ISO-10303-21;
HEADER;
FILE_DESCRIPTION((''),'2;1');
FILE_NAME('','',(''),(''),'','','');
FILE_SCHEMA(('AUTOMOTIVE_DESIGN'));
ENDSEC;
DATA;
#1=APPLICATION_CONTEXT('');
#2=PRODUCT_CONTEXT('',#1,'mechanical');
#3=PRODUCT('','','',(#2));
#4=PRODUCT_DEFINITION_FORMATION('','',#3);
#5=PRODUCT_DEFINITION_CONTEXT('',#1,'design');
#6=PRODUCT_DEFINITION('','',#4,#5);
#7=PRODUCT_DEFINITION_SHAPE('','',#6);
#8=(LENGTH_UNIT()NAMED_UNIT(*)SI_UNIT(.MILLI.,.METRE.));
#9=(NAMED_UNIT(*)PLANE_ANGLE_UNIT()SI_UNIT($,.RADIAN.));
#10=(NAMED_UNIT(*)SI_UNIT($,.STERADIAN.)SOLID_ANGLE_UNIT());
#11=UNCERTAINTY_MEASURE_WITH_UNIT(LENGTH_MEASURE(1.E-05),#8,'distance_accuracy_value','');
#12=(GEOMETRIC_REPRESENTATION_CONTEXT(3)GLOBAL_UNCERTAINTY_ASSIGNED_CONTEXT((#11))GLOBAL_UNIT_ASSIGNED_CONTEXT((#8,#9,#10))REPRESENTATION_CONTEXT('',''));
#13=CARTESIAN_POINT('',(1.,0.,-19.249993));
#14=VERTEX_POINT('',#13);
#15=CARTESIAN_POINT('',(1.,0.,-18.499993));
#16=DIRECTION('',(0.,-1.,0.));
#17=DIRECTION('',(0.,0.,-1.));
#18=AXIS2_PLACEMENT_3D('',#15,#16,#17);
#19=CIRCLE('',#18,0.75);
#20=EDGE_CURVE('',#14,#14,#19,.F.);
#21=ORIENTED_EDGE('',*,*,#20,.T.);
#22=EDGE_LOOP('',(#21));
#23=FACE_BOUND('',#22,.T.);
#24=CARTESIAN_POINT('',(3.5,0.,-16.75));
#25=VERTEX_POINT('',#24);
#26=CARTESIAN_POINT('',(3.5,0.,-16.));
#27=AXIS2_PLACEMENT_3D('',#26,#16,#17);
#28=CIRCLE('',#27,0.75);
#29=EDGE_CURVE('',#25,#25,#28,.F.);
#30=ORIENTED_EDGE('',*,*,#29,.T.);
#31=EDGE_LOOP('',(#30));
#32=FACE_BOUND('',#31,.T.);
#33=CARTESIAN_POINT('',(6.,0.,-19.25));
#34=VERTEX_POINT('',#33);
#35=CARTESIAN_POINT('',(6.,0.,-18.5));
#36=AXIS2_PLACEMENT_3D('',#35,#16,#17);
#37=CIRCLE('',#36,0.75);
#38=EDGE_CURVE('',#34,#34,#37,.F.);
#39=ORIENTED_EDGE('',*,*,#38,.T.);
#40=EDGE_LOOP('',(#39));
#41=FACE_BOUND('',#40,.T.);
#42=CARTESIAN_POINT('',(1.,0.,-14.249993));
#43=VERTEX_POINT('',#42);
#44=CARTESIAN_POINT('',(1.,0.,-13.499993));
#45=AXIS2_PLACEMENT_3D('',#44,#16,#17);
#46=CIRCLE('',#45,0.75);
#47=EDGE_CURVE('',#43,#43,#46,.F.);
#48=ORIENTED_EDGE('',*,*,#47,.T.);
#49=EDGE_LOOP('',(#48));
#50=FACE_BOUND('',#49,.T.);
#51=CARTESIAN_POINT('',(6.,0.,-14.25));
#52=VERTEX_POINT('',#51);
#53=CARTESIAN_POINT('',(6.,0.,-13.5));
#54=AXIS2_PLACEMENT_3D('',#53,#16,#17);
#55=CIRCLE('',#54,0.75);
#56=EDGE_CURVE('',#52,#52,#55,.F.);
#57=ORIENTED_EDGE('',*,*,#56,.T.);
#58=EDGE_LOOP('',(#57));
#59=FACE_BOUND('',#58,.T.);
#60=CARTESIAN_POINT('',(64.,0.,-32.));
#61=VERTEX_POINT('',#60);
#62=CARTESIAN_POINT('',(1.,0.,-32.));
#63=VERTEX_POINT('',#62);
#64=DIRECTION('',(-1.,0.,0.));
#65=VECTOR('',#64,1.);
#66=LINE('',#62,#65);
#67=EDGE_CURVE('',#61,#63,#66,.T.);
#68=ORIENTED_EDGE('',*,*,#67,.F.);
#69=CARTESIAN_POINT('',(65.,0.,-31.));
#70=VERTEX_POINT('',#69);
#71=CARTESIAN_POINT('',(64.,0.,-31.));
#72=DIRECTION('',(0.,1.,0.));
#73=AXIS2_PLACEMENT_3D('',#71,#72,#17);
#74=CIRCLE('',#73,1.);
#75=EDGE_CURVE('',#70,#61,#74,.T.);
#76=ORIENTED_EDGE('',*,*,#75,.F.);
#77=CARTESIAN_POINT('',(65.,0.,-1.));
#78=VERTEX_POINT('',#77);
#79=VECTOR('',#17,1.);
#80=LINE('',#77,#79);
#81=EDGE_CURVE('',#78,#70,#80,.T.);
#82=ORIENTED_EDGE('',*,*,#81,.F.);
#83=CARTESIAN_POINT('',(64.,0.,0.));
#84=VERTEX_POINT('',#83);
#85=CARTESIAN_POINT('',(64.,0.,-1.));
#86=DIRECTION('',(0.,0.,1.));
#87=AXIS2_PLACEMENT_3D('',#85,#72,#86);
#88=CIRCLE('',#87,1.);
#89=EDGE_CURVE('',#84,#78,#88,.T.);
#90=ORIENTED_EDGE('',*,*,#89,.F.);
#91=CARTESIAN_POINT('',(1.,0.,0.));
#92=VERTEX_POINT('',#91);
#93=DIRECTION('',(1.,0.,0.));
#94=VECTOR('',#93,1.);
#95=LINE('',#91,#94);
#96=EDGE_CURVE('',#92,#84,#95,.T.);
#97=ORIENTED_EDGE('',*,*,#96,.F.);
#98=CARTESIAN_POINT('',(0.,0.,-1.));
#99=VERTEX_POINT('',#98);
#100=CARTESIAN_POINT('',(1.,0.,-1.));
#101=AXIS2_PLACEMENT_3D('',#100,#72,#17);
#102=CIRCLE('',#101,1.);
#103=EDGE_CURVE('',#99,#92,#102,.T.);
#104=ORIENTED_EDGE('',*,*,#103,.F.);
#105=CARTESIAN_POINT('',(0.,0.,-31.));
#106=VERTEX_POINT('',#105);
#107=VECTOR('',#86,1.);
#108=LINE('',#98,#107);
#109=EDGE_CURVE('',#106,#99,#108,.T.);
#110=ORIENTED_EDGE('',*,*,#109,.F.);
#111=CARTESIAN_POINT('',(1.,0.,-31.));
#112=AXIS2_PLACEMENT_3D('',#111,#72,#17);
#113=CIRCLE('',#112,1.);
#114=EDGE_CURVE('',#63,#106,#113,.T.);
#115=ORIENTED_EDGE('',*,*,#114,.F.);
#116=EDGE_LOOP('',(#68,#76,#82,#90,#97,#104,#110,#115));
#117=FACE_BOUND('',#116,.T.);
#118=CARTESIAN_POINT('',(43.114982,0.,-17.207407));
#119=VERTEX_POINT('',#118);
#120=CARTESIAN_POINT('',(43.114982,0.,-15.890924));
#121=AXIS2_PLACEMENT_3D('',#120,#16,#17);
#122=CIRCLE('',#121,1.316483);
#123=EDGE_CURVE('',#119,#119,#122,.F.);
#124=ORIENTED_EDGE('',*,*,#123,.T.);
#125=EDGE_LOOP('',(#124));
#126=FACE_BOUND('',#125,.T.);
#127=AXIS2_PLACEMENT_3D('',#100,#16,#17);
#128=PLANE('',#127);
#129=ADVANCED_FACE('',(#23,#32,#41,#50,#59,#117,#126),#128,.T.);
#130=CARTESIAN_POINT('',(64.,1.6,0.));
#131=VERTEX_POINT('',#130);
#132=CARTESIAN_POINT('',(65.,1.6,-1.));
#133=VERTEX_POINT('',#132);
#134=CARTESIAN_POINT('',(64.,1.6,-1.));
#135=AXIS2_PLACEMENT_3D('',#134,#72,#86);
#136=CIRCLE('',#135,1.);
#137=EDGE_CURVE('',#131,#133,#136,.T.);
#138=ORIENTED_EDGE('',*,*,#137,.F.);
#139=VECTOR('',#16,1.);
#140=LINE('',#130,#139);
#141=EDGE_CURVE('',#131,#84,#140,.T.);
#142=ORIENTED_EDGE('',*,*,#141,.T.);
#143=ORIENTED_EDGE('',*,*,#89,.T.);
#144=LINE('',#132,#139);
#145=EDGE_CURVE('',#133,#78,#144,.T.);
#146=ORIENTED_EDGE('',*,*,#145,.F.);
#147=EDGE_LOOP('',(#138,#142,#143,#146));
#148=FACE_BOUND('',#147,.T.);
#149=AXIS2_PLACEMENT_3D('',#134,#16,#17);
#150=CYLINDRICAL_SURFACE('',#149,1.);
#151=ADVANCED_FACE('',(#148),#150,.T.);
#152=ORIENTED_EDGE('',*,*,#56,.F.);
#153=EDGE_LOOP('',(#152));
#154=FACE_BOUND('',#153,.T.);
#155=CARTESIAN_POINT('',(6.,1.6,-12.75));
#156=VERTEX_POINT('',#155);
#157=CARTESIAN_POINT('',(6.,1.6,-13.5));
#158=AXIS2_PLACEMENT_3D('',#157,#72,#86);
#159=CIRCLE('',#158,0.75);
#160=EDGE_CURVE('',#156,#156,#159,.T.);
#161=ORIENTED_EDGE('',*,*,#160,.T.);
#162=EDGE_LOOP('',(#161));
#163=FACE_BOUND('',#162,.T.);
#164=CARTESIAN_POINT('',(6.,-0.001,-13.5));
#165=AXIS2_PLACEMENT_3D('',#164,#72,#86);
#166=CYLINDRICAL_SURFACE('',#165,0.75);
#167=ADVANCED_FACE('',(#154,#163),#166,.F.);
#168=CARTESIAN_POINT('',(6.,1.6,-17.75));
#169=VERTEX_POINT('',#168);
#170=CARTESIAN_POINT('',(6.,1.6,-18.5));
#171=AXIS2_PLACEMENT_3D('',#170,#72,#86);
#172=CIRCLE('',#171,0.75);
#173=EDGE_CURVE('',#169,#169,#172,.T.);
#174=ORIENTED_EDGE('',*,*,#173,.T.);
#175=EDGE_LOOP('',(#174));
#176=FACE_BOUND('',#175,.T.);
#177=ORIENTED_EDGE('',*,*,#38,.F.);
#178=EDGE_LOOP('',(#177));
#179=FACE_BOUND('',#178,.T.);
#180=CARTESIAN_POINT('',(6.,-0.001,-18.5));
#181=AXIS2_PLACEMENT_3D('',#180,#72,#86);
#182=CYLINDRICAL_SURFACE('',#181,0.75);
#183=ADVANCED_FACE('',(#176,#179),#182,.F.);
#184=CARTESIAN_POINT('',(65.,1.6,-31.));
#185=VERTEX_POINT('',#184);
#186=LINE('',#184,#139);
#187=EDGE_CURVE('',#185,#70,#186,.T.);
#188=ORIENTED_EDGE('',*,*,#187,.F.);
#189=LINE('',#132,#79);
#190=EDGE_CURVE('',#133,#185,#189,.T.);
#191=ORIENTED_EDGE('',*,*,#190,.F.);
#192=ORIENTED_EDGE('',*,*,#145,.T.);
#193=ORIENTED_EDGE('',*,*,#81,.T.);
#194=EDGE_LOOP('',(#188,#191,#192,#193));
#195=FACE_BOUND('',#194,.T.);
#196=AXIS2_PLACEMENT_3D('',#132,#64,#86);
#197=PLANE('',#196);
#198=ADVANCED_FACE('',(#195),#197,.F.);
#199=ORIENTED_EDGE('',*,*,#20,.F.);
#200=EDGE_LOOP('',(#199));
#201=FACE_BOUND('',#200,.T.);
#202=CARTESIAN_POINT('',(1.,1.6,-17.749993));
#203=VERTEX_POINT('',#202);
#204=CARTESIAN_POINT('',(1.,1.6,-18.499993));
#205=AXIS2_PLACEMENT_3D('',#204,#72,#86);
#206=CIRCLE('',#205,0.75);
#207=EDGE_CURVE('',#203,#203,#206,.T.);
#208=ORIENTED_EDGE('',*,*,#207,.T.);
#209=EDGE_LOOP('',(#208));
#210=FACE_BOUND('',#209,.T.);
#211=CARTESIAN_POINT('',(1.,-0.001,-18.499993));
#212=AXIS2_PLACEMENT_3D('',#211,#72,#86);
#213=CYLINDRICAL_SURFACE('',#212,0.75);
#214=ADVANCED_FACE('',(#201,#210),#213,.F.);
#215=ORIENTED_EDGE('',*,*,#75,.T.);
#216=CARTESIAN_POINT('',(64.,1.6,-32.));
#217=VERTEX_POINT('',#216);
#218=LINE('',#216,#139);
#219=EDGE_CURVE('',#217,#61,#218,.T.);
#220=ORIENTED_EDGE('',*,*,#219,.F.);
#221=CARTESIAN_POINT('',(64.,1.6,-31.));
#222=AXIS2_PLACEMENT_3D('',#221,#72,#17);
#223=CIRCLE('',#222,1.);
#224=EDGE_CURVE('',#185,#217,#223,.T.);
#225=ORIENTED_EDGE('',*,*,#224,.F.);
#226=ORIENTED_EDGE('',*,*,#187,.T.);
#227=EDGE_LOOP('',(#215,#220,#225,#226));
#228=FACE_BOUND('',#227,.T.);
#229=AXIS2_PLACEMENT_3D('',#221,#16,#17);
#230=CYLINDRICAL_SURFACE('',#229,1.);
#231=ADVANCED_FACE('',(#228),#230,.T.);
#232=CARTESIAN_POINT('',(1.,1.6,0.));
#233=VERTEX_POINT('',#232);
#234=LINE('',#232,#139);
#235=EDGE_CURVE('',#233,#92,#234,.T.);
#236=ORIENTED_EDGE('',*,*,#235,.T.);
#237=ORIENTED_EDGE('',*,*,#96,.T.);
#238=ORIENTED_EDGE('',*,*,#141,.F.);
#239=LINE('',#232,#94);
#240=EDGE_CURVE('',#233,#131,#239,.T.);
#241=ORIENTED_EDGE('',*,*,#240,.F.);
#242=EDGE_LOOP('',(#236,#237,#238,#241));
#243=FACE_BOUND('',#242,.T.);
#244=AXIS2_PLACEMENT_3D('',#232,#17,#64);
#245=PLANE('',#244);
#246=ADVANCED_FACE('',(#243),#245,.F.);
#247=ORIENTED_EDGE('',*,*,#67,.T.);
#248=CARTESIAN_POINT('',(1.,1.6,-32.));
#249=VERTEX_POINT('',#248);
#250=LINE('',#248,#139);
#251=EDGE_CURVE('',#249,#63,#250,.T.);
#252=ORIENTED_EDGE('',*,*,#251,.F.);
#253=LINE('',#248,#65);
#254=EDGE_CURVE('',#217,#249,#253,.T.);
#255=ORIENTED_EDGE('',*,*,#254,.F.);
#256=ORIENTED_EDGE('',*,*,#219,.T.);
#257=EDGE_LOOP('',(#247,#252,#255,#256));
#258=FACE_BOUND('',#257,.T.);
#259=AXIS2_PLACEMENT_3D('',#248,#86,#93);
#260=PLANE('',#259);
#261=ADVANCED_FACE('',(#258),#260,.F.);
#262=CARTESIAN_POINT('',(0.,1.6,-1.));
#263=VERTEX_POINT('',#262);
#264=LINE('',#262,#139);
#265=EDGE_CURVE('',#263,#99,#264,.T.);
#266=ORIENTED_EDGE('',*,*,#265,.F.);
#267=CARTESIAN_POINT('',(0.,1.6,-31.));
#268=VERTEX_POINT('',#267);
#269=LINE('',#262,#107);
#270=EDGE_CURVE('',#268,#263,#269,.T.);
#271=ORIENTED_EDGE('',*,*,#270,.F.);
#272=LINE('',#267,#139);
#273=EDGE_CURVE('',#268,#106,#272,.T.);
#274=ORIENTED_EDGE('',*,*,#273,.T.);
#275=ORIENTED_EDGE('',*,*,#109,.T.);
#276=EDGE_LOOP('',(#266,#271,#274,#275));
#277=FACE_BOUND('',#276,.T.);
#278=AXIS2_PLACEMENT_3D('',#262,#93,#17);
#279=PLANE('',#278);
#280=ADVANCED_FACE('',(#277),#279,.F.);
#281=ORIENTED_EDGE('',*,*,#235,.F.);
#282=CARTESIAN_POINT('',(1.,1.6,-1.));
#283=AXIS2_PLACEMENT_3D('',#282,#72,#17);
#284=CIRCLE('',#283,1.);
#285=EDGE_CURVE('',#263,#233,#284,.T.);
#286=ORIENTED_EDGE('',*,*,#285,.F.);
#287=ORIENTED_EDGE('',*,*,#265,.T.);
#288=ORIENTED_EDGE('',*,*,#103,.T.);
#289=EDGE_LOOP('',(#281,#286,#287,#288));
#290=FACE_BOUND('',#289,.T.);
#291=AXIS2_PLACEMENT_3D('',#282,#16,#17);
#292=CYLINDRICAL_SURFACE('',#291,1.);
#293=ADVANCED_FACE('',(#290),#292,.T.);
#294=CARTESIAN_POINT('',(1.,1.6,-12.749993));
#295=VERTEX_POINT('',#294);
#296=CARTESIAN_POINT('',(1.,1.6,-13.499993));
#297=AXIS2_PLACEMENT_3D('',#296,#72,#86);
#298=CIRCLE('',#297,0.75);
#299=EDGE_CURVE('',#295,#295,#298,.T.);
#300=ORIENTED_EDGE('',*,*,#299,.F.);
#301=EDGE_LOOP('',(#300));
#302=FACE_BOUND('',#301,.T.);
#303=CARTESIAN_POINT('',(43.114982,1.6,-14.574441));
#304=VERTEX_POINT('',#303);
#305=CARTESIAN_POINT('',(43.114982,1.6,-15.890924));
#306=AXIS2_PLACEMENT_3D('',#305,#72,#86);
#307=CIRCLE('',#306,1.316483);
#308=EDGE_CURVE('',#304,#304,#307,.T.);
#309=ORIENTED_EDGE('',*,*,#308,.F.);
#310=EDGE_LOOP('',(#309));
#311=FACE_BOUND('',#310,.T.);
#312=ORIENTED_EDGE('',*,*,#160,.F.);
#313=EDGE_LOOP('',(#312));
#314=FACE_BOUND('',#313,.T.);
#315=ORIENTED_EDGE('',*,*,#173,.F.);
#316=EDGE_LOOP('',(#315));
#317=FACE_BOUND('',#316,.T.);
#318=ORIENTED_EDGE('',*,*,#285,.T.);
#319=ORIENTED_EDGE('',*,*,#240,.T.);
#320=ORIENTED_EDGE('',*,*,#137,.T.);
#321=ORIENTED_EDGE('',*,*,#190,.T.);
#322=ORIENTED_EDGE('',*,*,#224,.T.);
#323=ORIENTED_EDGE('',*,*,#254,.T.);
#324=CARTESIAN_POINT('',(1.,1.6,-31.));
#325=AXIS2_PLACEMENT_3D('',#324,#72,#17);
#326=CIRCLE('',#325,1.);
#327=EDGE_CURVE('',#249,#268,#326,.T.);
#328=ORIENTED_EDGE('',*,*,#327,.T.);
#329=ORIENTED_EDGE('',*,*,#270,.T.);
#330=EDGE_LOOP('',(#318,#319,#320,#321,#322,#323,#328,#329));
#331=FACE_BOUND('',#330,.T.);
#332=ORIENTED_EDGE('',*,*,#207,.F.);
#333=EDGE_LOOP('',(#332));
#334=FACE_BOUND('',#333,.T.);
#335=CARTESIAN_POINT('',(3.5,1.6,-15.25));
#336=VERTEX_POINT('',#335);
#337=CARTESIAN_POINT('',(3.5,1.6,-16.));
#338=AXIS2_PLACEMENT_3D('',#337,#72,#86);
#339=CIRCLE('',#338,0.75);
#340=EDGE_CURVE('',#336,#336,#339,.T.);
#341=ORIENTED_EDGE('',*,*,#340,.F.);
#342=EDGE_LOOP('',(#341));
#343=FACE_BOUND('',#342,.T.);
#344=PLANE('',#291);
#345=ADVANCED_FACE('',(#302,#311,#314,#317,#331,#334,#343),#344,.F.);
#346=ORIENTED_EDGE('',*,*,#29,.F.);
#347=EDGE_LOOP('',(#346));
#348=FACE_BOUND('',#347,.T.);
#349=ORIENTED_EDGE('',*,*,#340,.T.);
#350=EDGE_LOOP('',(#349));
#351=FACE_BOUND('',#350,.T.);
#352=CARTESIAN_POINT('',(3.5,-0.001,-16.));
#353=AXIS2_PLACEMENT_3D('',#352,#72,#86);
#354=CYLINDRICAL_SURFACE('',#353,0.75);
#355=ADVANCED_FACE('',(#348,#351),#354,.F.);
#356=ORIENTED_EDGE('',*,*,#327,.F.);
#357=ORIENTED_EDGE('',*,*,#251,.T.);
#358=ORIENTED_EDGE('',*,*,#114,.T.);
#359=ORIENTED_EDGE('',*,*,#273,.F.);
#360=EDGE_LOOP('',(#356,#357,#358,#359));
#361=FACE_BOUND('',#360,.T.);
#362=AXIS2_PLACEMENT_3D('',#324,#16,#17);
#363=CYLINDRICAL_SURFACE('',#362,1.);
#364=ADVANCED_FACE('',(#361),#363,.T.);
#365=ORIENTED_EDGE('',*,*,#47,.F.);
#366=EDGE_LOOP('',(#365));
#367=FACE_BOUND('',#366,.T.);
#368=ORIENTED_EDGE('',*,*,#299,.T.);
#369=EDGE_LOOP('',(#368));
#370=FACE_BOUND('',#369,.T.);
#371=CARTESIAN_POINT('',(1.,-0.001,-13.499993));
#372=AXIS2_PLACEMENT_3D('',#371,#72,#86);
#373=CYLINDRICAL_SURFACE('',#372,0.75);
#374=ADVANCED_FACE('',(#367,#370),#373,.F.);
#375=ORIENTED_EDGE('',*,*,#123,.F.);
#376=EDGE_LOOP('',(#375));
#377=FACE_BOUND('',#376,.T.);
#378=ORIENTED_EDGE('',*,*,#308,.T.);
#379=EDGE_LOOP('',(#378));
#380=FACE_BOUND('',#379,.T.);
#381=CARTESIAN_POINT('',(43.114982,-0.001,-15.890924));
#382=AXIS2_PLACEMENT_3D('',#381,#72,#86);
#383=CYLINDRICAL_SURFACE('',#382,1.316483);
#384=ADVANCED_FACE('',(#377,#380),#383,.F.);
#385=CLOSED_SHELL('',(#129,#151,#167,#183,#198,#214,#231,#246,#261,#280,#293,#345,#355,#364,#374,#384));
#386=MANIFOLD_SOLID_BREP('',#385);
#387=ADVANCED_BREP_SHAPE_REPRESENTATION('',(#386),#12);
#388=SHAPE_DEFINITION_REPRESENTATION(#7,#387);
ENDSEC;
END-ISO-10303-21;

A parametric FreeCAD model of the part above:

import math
import FreeCAD as App
import Part
import Sketcher

doc = App.newDocument("Part")
params = doc.addObject("Spreadsheet::Sheet", "Params")
for row, (alias, value) in enumerate([
    ("sketch1_radius", "1 mm"),
    ("sketch1_width", "63 mm"),
    ("sketch1_height", "30 mm"),
    ("pad1_length", "1.6 mm"),
    ("sketch2_diameter", "1.5 mm"),
    ("sketch3_diameter", "1.5 mm"),
    ("sketch4_diameter", "1.5 mm"),
    ("sketch5_diameter", "1.5 mm"),
    ("sketch6_diameter", "1.5 mm"),
], start=1):
    params.set(f"A{row}", alias)
    params.set(f"B{row}", "=" + value)
    params.setAlias(f"B{row}", alias)

body = doc.addObject("PartDesign::Body", "Body")

sketch1 = doc.addObject("Sketcher::SketchObject", "Sketch")
body.addObject(sketch1)
sketch1.AttachmentSupport = (doc.XZ_Plane, [""])
sketch1.MapMode = "FlatFace"
sketch1.addGeometry([
    Part.LineSegment(App.Vector(1, 0, 0), App.Vector(64, 0, 0)),
    Part.ArcOfCircle(Part.Circle(App.Vector(64, -1, 0), App.Vector(0, 0, 1), 1), math.radians(0), math.radians(90)),
    Part.LineSegment(App.Vector(65, -1, 0), App.Vector(65, -31, 0)),
    Part.ArcOfCircle(Part.Circle(App.Vector(64, -31, 0), App.Vector(0, 0, 1), 1), math.radians(-90), math.radians(0)),
    Part.LineSegment(App.Vector(64, -32, 0), App.Vector(1, -32, 0)),
    Part.ArcOfCircle(Part.Circle(App.Vector(1, -31, 0), App.Vector(0, 0, 1), 1), math.radians(-180), math.radians(-90)),
    Part.LineSegment(App.Vector(0, -31, 0), App.Vector(0, -1, 0)),
    Part.ArcOfCircle(Part.Circle(App.Vector(1, -1, 0), App.Vector(0, 0, 1), 1), math.radians(90), math.radians(180)),
], False)
sketch1.addConstraint([
    Sketcher.Constraint("Tangent", 0, 2, 1, 2),
    Sketcher.Constraint("Tangent", 1, 1, 2, 1),
    Sketcher.Constraint("Tangent", 2, 2, 3, 2),
    Sketcher.Constraint("Tangent", 3, 1, 4, 1),
    Sketcher.Constraint("Tangent", 4, 2, 5, 2),
    Sketcher.Constraint("Tangent", 5, 1, 6, 1),
    Sketcher.Constraint("Tangent", 6, 2, 7, 2),
    Sketcher.Constraint("Tangent", 7, 1, 0, 1),
    Sketcher.Constraint("Horizontal", 0),
    Sketcher.Constraint("Vertical", 2),
    Sketcher.Constraint("Horizontal", 4),
    Sketcher.Constraint("Vertical", 6),
    Sketcher.Constraint("Equal", 1, 3),
    Sketcher.Constraint("Equal", 3, 5),
    Sketcher.Constraint("Equal", 5, 7),
    Sketcher.Constraint("PointOnObject", 0, 2, -1),
    Sketcher.Constraint("PointOnObject", 5, 1, -2),
    Sketcher.Constraint("Radius", 1, 1.0),
    Sketcher.Constraint("DistanceX", 0, 1, 0, 2, 63.0),
    Sketcher.Constraint("DistanceY", 2, 2, 2, 1, 30.0),
])
sketch1.setExpression("Constraints[17]", "Params.sketch1_radius")
sketch1.setExpression("Constraints[18]", "Params.sketch1_width")
sketch1.setExpression("Constraints[19]", "Params.sketch1_height")
pad1 = doc.addObject("PartDesign::Pad", "Pad")
body.addObject(pad1)
pad1.Profile = sketch1
pad1.setExpression("Length", "Params.pad1_length")
pad1.Reversed = True

sketch2 = doc.addObject("Sketcher::SketchObject", "Sketch001")
body.addObject(sketch2)
sketch2.AttachmentSupport = (doc.XZ_Plane, [""])
sketch2.MapMode = "FlatFace"
sketch2.AttachmentOffset = App.Placement(App.Vector(0, 0, -1.6), App.Rotation())
sketch2.addGeometry(Part.Circle(App.Vector(3.5, -16, 0), App.Vector(0, 0, 1), 0.75), False)
sketch2.addConstraint([
    Sketcher.Constraint("Diameter", 0, 1.5),
    Sketcher.Constraint("DistanceY", 0, 3, -1, 1, 16.0),
    Sketcher.Constraint("DistanceX", -1, 1, 0, 3, 3.5),
])
sketch2.setExpression("Constraints[0]", "Params.sketch2_diameter")
pocket1 = doc.addObject("PartDesign::Pocket", "Pocket")
body.addObject(pocket1)
pocket1.Profile = sketch2
pocket1.Type = "UpToFirst"
pocket1.Reversed = True

sketch3 = doc.addObject("Sketcher::SketchObject", "Sketch002")
body.addObject(sketch3)
sketch3.AttachmentSupport = (doc.XZ_Plane, [""])
sketch3.MapMode = "FlatFace"
sketch3.AttachmentOffset = App.Placement(App.Vector(0, 0, -1.6), App.Rotation())
sketch3.addGeometry(Part.Circle(App.Vector(6, -18.5, 0), App.Vector(0, 0, 1), 0.75), False)
sketch3.addConstraint([
    Sketcher.Constraint("Diameter", 0, 1.5),
    Sketcher.Constraint("DistanceX", -1, 1, 0, 3, 6.0),
    Sketcher.Constraint("DistanceY", 0, 3, -1, 1, 18.5),
])
sketch3.setExpression("Constraints[0]", "Params.sketch3_diameter")
pocket2 = doc.addObject("PartDesign::Pocket", "Pocket001")
body.addObject(pocket2)
pocket2.Profile = sketch3
pocket2.Type = "UpToFirst"
pocket2.Reversed = True

sketch4 = doc.addObject("Sketcher::SketchObject", "Sketch003")
body.addObject(sketch4)
sketch4.AttachmentSupport = (doc.XZ_Plane, [""])
sketch4.MapMode = "FlatFace"
sketch4.AttachmentOffset = App.Placement(App.Vector(0, 0, -1.6), App.Rotation())
sketch4.addGeometry(Part.Circle(App.Vector(6, -13.5, 0), App.Vector(0, 0, 1), 0.75), False)
sketch4.addConstraint([
    Sketcher.Constraint("Diameter", 0, 1.5),
    Sketcher.Constraint("DistanceX", -1, 1, 0, 3, 6.0),
    Sketcher.Constraint("DistanceY", 0, 3, -1, 1, 13.5),
])
sketch4.setExpression("Constraints[0]", "Params.sketch4_diameter")
pocket3 = doc.addObject("PartDesign::Pocket", "Pocket002")
body.addObject(pocket3)
pocket3.Profile = sketch4
pocket3.Type = "UpToFirst"
pocket3.Reversed = True

sketch5 = doc.addObject("Sketcher::SketchObject", "Sketch004")
body.addObject(sketch5)
sketch5.AttachmentSupport = (doc.XZ_Plane, [""])
sketch5.MapMode = "FlatFace"
sketch5.AttachmentOffset = App.Placement(App.Vector(0, 0, -1.6), App.Rotation())
sketch5.addGeometry(Part.Circle(App.Vector(1, -13.499993, 0), App.Vector(0, 0, 1), 0.75), False)
sketch5.addConstraint([
    Sketcher.Constraint("Diameter", 0, 1.5),
    Sketcher.Constraint("DistanceX", -1, 1, 0, 3, 1.0),
    Sketcher.Constraint("DistanceY", 0, 3, -1, 1, 13.499993),
])
sketch5.setExpression("Constraints[0]", "Params.sketch5_diameter")
pocket4 = doc.addObject("PartDesign::Pocket", "Pocket003")
body.addObject(pocket4)
pocket4.Profile = sketch5
pocket4.Type = "UpToFirst"
pocket4.Reversed = True

sketch6 = doc.addObject("Sketcher::SketchObject", "Sketch005")
body.addObject(sketch6)
sketch6.AttachmentSupport = (doc.XZ_Plane, [""])
sketch6.MapMode = "FlatFace"
sketch6.AttachmentOffset = App.Placement(App.Vector(0, 0, -1.6), App.Rotation())
sketch6.addGeometry(Part.Circle(App.Vector(1, -18.499993, 0), App.Vector(0, 0, 1), 0.75), False)
sketch6.addConstraint([
    Sketcher.Constraint("Diameter", 0, 1.5),
    Sketcher.Constraint("DistanceX", -1, 1, 0, 3, 1.0),
    Sketcher.Constraint("DistanceY", 0, 3, -1, 1, 18.499993),
])
sketch6.setExpression("Constraints[0]", "Params.sketch6_diameter")
pocket5 = doc.addObject("PartDesign::Pocket", "Pocket004")
body.addObject(pocket5)
pocket5.Profile = sketch6
pocket5.Type = "UpToFirst"
pocket5.Reversed = True

sketch7 = doc.addObject("Sketcher::SketchObject", "Sketch006")
body.addObject(sketch7)
sketch7.AttachmentSupport = (doc.XZ_Plane, [""])
sketch7.MapMode = "FlatFace"
sketch7.AttachmentOffset = App.Placement(App.Vector(0, 0, -1.6), App.Rotation())
sketch7.addGeometry(Part.Circle(App.Vector(43.114982, -15.890924, 0), App.Vector(0, 0, 1), 1.316483), False)
sketch7.addConstraint([
    Sketcher.Constraint("Diameter", 0, 2.632967),
    Sketcher.Constraint("DistanceX", -1, 1, 0, 3, 43.114982),
    Sketcher.Constraint("DistanceY", 0, 3, -1, 1, 15.890924),
])
pocket6 = doc.addObject("PartDesign::Pocket", "Pocket005")
body.addObject(pocket6)
pocket6.Profile = sketch7
pocket6.Type = "UpToFirst"
pocket6.Reversed = True

doc.recompute()
